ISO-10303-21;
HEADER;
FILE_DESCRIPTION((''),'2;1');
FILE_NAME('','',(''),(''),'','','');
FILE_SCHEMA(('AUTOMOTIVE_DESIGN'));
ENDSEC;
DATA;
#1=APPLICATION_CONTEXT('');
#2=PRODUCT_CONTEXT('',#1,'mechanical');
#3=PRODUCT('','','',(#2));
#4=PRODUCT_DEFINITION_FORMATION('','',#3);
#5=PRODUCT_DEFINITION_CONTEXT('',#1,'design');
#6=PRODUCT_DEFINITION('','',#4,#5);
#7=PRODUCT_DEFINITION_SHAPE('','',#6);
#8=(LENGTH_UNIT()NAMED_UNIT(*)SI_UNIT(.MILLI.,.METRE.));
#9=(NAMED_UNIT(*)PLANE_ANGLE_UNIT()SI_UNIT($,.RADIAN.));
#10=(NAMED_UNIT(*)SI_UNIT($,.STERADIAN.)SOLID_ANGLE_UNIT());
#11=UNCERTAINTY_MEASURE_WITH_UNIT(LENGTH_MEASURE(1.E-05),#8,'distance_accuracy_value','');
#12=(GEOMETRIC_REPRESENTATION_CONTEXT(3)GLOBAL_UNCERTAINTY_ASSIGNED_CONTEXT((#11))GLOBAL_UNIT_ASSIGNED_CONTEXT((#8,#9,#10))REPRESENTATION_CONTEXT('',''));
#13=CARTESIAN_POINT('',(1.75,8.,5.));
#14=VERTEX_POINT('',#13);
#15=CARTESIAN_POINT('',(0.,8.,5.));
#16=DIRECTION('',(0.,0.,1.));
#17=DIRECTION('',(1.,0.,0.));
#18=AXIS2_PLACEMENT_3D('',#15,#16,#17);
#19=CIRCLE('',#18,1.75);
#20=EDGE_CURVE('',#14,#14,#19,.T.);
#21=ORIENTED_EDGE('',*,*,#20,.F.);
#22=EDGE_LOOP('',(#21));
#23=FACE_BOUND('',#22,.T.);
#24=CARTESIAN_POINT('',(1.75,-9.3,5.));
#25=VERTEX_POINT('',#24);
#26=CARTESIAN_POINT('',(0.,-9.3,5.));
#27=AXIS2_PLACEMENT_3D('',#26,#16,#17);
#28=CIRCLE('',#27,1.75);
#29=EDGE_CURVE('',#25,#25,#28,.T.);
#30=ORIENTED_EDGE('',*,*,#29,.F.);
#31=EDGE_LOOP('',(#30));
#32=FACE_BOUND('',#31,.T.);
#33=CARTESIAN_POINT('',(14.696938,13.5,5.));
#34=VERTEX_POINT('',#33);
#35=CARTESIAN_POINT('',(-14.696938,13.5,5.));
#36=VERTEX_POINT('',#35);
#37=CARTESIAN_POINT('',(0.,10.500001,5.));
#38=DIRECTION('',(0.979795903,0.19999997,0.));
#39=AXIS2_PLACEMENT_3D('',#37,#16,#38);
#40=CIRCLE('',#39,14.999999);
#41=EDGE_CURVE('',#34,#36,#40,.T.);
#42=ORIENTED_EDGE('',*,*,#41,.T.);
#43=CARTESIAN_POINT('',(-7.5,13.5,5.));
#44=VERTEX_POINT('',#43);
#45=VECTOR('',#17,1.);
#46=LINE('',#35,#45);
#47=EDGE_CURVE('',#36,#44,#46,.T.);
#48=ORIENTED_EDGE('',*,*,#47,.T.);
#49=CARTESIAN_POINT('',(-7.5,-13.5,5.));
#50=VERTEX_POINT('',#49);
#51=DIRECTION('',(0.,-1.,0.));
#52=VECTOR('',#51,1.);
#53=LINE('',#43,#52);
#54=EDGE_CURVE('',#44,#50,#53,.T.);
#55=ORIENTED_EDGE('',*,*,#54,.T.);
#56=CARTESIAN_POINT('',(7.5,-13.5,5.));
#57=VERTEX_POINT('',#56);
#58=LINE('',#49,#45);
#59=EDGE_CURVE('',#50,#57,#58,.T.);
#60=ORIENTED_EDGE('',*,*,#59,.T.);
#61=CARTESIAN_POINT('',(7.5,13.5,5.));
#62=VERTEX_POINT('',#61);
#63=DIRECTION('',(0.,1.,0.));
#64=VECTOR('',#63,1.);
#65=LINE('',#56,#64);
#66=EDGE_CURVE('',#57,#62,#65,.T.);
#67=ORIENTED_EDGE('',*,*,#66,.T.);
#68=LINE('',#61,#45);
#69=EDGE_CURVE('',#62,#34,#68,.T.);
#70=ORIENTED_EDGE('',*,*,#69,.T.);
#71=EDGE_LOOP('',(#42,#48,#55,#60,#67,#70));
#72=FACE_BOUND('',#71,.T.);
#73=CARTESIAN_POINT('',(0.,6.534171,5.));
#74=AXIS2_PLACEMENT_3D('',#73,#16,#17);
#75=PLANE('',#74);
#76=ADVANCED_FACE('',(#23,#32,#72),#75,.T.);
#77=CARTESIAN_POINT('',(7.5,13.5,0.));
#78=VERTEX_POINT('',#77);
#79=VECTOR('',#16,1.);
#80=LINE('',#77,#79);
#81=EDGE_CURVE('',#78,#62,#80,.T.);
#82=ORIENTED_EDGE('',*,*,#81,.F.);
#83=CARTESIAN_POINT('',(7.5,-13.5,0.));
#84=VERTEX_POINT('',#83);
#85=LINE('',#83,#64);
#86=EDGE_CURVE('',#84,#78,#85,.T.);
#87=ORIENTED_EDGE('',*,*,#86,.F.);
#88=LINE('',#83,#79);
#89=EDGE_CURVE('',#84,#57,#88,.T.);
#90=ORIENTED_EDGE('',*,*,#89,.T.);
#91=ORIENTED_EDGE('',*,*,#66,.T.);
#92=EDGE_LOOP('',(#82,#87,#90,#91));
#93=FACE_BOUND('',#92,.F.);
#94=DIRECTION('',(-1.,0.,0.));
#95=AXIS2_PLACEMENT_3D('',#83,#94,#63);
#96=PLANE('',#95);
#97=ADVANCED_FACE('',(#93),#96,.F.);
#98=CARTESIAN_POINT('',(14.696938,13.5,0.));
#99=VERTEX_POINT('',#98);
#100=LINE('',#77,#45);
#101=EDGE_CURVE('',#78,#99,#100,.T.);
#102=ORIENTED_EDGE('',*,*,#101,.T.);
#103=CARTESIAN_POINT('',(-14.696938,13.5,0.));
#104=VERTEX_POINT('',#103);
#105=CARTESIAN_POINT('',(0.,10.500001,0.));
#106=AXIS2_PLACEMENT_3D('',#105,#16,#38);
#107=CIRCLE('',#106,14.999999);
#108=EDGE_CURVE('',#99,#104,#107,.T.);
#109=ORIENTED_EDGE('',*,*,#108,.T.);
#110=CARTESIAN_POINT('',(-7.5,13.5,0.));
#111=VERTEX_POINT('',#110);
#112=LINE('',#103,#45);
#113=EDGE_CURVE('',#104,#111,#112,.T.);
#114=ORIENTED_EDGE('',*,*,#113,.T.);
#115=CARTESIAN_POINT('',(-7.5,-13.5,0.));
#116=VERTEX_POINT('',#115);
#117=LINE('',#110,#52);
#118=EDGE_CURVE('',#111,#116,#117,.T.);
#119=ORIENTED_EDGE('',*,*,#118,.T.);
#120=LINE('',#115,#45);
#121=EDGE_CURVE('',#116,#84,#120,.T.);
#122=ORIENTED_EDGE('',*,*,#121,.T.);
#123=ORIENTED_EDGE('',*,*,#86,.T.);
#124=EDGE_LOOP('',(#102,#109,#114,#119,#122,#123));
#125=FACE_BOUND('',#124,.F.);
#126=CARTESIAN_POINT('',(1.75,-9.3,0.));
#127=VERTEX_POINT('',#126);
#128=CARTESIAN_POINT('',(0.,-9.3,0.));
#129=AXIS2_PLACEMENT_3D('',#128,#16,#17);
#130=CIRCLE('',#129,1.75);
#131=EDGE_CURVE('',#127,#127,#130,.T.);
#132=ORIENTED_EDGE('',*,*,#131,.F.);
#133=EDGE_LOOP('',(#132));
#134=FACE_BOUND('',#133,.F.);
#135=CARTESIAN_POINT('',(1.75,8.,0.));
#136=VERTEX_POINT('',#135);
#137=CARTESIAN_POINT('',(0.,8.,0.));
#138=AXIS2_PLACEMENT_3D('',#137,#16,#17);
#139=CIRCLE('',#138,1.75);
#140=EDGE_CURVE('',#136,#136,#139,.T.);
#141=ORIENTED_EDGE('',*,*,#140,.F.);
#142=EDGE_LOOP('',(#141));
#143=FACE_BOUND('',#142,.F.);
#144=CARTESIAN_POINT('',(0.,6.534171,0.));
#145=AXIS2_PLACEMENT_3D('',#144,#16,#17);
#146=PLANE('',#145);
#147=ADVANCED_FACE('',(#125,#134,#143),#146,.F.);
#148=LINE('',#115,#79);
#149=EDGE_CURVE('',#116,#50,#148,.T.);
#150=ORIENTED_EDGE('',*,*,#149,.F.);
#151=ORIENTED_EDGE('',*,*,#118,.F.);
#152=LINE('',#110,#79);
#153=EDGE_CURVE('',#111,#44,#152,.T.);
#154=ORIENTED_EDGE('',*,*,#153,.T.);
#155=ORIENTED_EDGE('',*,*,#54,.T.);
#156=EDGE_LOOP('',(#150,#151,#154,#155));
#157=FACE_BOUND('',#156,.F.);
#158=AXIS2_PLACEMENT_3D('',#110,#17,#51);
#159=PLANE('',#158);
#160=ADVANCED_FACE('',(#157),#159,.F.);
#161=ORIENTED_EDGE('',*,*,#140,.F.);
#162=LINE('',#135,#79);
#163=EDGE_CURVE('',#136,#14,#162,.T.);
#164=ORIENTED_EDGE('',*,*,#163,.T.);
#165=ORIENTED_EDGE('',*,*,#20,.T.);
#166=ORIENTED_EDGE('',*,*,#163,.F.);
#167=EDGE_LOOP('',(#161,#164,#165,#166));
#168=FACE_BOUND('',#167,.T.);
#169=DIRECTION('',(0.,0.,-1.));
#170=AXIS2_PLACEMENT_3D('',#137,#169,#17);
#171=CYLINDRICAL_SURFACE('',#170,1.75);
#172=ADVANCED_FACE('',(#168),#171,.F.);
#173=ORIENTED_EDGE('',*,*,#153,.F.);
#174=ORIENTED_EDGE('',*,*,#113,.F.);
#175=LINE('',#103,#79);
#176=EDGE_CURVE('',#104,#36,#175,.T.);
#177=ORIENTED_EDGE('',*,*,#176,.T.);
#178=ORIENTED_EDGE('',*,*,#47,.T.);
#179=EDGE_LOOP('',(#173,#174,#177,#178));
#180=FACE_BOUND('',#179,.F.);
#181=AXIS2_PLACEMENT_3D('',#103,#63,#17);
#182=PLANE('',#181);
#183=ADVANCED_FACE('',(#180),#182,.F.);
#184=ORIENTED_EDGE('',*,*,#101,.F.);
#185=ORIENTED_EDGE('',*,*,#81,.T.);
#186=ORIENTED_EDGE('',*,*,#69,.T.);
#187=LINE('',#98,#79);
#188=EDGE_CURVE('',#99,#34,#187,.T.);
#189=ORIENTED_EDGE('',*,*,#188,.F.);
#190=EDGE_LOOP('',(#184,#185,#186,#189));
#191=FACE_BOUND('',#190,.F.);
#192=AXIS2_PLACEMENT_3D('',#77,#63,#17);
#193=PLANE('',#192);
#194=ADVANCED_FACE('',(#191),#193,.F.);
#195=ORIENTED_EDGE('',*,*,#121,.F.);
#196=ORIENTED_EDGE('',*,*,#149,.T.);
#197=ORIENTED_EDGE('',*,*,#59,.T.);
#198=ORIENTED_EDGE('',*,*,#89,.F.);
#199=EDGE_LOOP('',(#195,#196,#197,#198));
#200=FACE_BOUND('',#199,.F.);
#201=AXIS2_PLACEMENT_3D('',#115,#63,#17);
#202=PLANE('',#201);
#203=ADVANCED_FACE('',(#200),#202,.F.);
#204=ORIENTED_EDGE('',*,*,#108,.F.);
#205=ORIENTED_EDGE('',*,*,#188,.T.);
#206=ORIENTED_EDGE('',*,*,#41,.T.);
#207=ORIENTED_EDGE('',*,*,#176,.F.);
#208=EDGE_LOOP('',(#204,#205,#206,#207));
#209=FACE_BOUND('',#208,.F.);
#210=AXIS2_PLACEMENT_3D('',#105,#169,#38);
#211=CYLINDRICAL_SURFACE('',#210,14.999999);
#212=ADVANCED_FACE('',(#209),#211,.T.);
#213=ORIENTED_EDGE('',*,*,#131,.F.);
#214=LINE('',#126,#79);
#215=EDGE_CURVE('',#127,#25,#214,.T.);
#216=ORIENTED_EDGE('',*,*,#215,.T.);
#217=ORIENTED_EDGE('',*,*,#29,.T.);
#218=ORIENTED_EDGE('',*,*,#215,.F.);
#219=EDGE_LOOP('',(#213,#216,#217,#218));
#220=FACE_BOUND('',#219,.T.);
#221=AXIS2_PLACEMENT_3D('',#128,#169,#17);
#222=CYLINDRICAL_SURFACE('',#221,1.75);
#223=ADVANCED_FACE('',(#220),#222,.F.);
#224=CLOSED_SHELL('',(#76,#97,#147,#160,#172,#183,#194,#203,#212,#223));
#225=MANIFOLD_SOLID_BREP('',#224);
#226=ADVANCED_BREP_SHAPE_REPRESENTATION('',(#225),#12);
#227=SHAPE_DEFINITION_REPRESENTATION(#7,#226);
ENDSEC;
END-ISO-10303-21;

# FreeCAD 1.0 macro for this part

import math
import FreeCAD as App
import Part
import Sketcher

doc = App.newDocument("Part")
body = doc.addObject("PartDesign::Body", "Body")

sketch1 = body.newObject("Sketcher::SketchObject", "Sketch")
sketch1.AttachmentSupport = (doc.getObject("XY_Plane"), [""])
sketch1.MapMode = "FlatFace"
sketch1.addGeometry([
    Part.LineSegment(App.Vector(-7.5, 13.5, 0), App.Vector(-7.5, -13.5, 0)),
    Part.LineSegment(App.Vector(-7.5, -13.5, 0), App.Vector(7.5, -13.5, 0)),
    Part.LineSegment(App.Vector(7.5, -13.5, 0), App.Vector(7.5, 13.5, 0)),
    Part.LineSegment(App.Vector(7.5, 13.5, 0), App.Vector(14.7, 13.5, 0)),
    Part.ArcOfCircle(Part.Circle(App.Vector(0, 10.5, 0), App.Vector(0, 0, 1), 15), math.radians(12), math.radians(168)),
    Part.LineSegment(App.Vector(-14.7, 13.5, 0), App.Vector(-7.5, 13.5, 0)),
    Part.Circle(App.Vector(0, -9.3, 0), App.Vector(0, 0, 1), 1.8),
    Part.Circle(App.Vector(0, 8, 0), App.Vector(0, 0, 1), 1.8),
], False)
sketch1.addConstraint([
    Sketcher.Constraint("Coincident", 0, 2, 1, 1),
    Sketcher.Constraint("Coincident", 1, 2, 2, 1),
    Sketcher.Constraint("Coincident", 2, 2, 3, 1),
    Sketcher.Constraint("Coincident", 3, 2, 4, 1),
    Sketcher.Constraint("Coincident", 4, 2, 5, 1),
    Sketcher.Constraint("Coincident", 5, 2, 0, 1),
    Sketcher.Constraint("Vertical", 0),
    Sketcher.Constraint("Horizontal", 1),
    Sketcher.Constraint("Vertical", 2),
    Sketcher.Constraint("Horizontal", 3),
    Sketcher.Constraint("Horizontal", 5),
    Sketcher.Constraint("Equal", 6, 7),
    Sketcher.Constraint("Symmetric", 0, 2, 2, 2, -1, 1),
    Sketcher.Constraint("Symmetric", 3, 2, 4, 2, -2),
    Sketcher.Constraint("PointOnObject", 6, 3, -2),
    Sketcher.Constraint("PointOnObject", 7, 3, -2),
    Sketcher.Constraint("Radius", 4, 14.999999),
    Sketcher.Constraint("Diameter", 6, 3.5),
    Sketcher.Constraint("DistanceX", 1, 1, 1, 2, 15.0),
    Sketcher.Constraint("DistanceY", 0, 2, 0, 1, 27.0),
    Sketcher.Constraint("DistanceY", -1, 1, 7, 3, 8.0),
    Sketcher.Constraint("DistanceY", 0, 2, 4, 3, 24.000001),
    Sketcher.Constraint("DistanceY", 6, 3, -1, 1, 9.3),
])
pad1 = body.newObject("PartDesign::Pad", "Pad")
pad1.Profile = sketch1
pad1.Length = 5

doc.recompute()
